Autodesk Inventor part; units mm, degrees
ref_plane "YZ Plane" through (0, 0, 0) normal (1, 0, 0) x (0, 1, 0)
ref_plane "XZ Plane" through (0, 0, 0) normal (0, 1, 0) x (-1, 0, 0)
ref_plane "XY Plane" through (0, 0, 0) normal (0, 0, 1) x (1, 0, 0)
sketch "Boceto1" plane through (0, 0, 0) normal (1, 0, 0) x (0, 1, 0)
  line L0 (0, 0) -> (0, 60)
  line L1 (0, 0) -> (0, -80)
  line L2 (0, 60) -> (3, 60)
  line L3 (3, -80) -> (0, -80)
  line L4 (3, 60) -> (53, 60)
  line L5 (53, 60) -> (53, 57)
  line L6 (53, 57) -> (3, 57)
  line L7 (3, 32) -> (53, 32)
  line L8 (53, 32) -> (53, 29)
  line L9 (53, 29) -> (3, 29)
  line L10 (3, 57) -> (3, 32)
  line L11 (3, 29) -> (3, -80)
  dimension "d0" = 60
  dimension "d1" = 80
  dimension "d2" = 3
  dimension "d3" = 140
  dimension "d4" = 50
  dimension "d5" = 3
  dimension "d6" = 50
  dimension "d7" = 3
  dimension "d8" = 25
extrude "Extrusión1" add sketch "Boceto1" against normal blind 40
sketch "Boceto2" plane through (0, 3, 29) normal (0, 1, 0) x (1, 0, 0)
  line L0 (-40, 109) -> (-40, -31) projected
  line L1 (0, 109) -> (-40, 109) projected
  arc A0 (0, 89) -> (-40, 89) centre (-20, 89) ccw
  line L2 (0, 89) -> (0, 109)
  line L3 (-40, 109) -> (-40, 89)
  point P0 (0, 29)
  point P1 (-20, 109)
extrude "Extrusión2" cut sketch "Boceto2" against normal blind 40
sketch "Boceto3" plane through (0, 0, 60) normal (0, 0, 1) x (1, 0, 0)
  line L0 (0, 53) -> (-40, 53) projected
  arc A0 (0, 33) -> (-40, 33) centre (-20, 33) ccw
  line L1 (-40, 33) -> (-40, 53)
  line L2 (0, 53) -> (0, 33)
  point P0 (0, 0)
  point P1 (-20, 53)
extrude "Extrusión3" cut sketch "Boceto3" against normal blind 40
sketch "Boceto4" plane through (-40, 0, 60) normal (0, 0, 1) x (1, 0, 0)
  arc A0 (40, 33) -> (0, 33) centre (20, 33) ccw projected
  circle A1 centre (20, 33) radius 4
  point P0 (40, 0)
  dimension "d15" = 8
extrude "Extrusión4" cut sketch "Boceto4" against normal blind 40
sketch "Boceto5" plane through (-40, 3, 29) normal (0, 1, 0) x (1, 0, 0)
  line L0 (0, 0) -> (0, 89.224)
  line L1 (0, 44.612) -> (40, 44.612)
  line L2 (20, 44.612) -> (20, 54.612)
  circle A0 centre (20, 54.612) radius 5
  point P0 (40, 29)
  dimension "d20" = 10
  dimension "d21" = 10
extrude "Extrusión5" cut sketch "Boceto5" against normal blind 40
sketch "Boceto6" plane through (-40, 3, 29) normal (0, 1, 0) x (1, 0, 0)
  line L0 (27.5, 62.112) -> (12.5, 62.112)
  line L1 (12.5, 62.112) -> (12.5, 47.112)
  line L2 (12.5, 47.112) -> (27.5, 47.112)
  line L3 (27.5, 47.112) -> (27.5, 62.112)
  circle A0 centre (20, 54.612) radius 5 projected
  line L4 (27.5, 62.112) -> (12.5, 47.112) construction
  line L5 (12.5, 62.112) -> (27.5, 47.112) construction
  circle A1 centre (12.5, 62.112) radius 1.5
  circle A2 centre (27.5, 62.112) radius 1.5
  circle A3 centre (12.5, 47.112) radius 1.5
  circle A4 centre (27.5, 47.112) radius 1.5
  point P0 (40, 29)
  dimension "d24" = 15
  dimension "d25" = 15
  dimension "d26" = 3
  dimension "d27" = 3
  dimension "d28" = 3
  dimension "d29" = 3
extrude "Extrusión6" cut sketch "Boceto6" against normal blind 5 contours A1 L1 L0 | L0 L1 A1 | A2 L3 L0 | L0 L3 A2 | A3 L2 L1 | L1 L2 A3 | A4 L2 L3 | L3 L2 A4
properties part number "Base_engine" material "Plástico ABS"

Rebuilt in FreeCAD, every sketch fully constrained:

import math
import FreeCAD as App
import Part
import Sketcher


def add_polygon(sketch, points):
    """Adds a closed chain of lines whose ends are joined by coincident constraints."""
    first, n = sketch.GeometryCount, len(points)
    for a, b in zip(points, points[1:] + points[:1]):
        sketch.addGeometry(Part.LineSegment(App.Vector(*a, 0), App.Vector(*b, 0)), False)
    for i in range(n):
        sketch.addConstraint(Sketcher.Constraint("Coincident", first + i, 2, first + (i + 1) % n, 1))

doc = App.newDocument("Part")
params = doc.addObject("Spreadsheet::Sheet", "Params")
for row, (alias, value) in enumerate([
    ("sketch1_width", "3 mm"),
    ("sketch1_width2", "50 mm"),
    ("sketch1_height", "140 mm"),
    ("sketch1_height2", "25 mm"),
    ("pad1_length", "40 mm"),
    ("sketch2_radius", "20 mm"),
    ("pocket1_length", "40 mm"),
    ("sketch3_radius", "20 mm"),
    ("pocket2_length", "40 mm"),
    ("sketch4_diameter", "8 mm"),
    ("pocket3_length", "40 mm"),
    ("sketch5_diameter", "10 mm"),
    ("pocket4_length", "40 mm"),
    ("sketch6_diameter", "3 mm"),
    ("pocket5_length", "5 mm"),
], start=1):
    params.set(f"A{row}", alias)
    params.set(f"B{row}", "=" + value)
    params.setAlias(f"B{row}", alias)

body = doc.addObject("PartDesign::Body", "Body")

sketch1 = body.newObject("Sketcher::SketchObject", "Sketch")
sketch1.AttachmentSupport = (doc.getObject("YZ_Plane"), [""])
sketch1.MapMode = "FlatFace"
add_polygon(sketch1, [(0, 60), (0, -80), (3, -80), (3, 29), (53, 29), (53, 32), (3, 32), (3, 57), (53, 57), (53, 60)])
sketch1.addConstraint([
    Sketcher.Constraint("Vertical", 0),
    Sketcher.Constraint("Horizontal", 1),
    Sketcher.Constraint("Vertical", 2),
    Sketcher.Constraint("Horizontal", 3),
    Sketcher.Constraint("Vertical", 4),
    Sketcher.Constraint("Horizontal", 5),
    Sketcher.Constraint("Vertical", 6),
    Sketcher.Constraint("Horizontal", 7),
    Sketcher.Constraint("Vertical", 8),
    Sketcher.Constraint("Horizontal", 9),
    Sketcher.Constraint("PointOnObject", 0, 2, -2),
    Sketcher.Constraint("Vertical", 2, 2, 5, 2),
    Sketcher.Constraint("Vertical", 4, 2, 7, 2),
    Sketcher.Constraint("Equal", 1, 4),
    Sketcher.Constraint("Equal", 4, 8),
    Sketcher.Constraint("DistanceX", 1, 1, 1, 2, 3.0),
    Sketcher.Constraint("DistanceX", 3, 1, 3, 2, 50.0),
    Sketcher.Constraint("DistanceY", 0, 2, 0, 1, 140.0),
    Sketcher.Constraint("DistanceY", 6, 1, 6, 2, 25.0),
    Sketcher.Constraint("DistanceY", 0, 2, -1, 1, 80.0),
])
sketch1.setExpression("Constraints[25]", "Params.sketch1_width")
sketch1.setExpression("Constraints[26]", "Params.sketch1_width2")
sketch1.setExpression("Constraints[27]", "Params.sketch1_height")
sketch1.setExpression("Constraints[28]", "Params.sketch1_height2")
pad1 = body.newObject("PartDesign::Pad", "Pad")
pad1.Profile = sketch1
pad1.setExpression("Length", "Params.pad1_length")
pad1.Reversed = True

sketch2 = body.newObject("Sketcher::SketchObject", "Sketch001")
sketch2.AttachmentSupport = (doc.getObject("XZ_Plane"), [""])
sketch2.MapMode = "FlatFace"
sketch2.AttachmentOffset = App.Placement(App.Vector(0, 0, -3), App.Rotation())
sketch2.addGeometry([
    Part.LineSegment(App.Vector(-20, -80, 0), App.Vector(-40, -80, 0)),
    Part.LineSegment(App.Vector(-40, -80, 0), App.Vector(-40, -60, 0)),
    Part.ArcOfCircle(Part.Circle(App.Vector(-20, -60, 0), App.Vector(0, 0, 1), 20), math.radians(180), math.radians(270)),
    Part.LineSegment(App.Vector(0, -80, 0), App.Vector(-20, -80, 0)),
    Part.ArcOfCircle(Part.Circle(App.Vector(-20, -60, 0), App.Vector(0, 0, 1), 20), math.radians(-90), math.radians(0)),
    Part.LineSegment(App.Vector(0, -60, 0), App.Vector(0, -80, 0)),
], False)
sketch2.addConstraint([
    Sketcher.Constraint("Coincident", 0, 2, 1, 1),
    Sketcher.Constraint("Tangent", 1, 2, 2, 1),
    Sketcher.Constraint("Tangent", 2, 2, 0, 1),
    Sketcher.Constraint("Tangent", 3, 2, 4, 1),
    Sketcher.Constraint("Tangent", 4, 2, 5, 1),
    Sketcher.Constraint("Coincident", 5, 2, 3, 1),
    Sketcher.Constraint("Horizontal", 0),
    Sketcher.Constraint("Vertical", 1),
    Sketcher.Constraint("Horizontal", 3),
    Sketcher.Constraint("Vertical", 5),
    Sketcher.Constraint("Coincident", 4, 3, 2, 3),
    Sketcher.Constraint("Equal", 2, 4),
    Sketcher.Constraint("PointOnObject", 4, 2, -2),
    Sketcher.Constraint("Radius", 2, 20.0),
    Sketcher.Constraint("DistanceY", 2, 3, -1, 1, 60.0),
])
sketch2.setExpression("Constraints[13]", "Params.sketch2_radius")
pocket1 = body.newObject("PartDesign::Pocket", "Pocket")
pocket1.Profile = sketch2
pocket1.setExpression("Length", "Params.pocket1_length")
pocket1.Reversed = True

sketch3 = body.newObject("Sketcher::SketchObject", "Sketch002")
sketch3.AttachmentSupport = (doc.getObject("XY_Plane"), [""])
sketch3.MapMode = "FlatFace"
sketch3.AttachmentOffset = App.Placement(App.Vector(0, 0, 60), App.Rotation())
sketch3.addGeometry([
    Part.LineSegment(App.Vector(0, 33, 0), App.Vector(0, 53, 0)),
    Part.LineSegment(App.Vector(0, 53, 0), App.Vector(-20, 53, 0)),
    Part.ArcOfCircle(Part.Circle(App.Vector(-20, 33, 0), App.Vector(0, 0, 1), 20), math.radians(0), math.radians(90)),
    Part.ArcOfCircle(Part.Circle(App.Vector(-20, 33, 0), App.Vector(0, 0, 1), 20), math.radians(90), math.radians(180)),
    Part.LineSegment(App.Vector(-20, 53, 0), App.Vector(-40, 53, 0)),
    Part.LineSegment(App.Vector(-40, 53, 0), App.Vector(-40, 33, 0)),
], False)
sketch3.addConstraint([
    Sketcher.Constraint("Coincident", 0, 2, 1, 1),
    Sketcher.Constraint("Tangent", 1, 2, 2, 2),
    Sketcher.Constraint("Tangent", 2, 1, 0, 1),
    Sketcher.Constraint("Tangent", 3, 1, 4, 1),
    Sketcher.Constraint("Coincident", 4, 2, 5, 1),
    Sketcher.Constraint("Tangent", 5, 2, 3, 2),
    Sketcher.Constraint("Vertical", 0),
    Sketcher.Constraint("Horizontal", 1),
    Sketcher.Constraint("Horizontal", 4),
    Sketcher.Constraint("Vertical", 5),
    Sketcher.Constraint("Coincident", 3, 3, 2, 3),
    Sketcher.Constraint("Equal", 2, 3),
    Sketcher.Constraint("PointOnObject", 0, 2, -2),
    Sketcher.Constraint("Radius", 2, 20.0),
    Sketcher.Constraint("DistanceY", -1, 1, 2, 3, 33.0),
])
sketch3.setExpression("Constraints[13]", "Params.sketch3_radius")
pocket2 = body.newObject("PartDesign::Pocket", "Pocket001")
pocket2.Profile = sketch3
pocket2.setExpression("Length", "Params.pocket2_length")

sketch4 = body.newObject("Sketcher::SketchObject", "Sketch003")
sketch4.AttachmentSupport = (doc.getObject("XY_Plane"), [""])
sketch4.MapMode = "FlatFace"
sketch4.AttachmentOffset = App.Placement(App.Vector(0, 0, 60), App.Rotation())
sketch4.addGeometry(Part.Circle(App.Vector(-20, 33, 0), App.Vector(0, 0, 1), 4), False)
sketch4.addConstraint([
    Sketcher.Constraint("Diameter", 0, 8.0),
    Sketcher.Constraint("DistanceX", 0, 3, -1, 1, 20.0),
    Sketcher.Constraint("DistanceY", -1, 1, 0, 3, 33.0),
])
sketch4.setExpression("Constraints[0]", "Params.sketch4_diameter")
pocket3 = body.newObject("PartDesign::Pocket", "Pocket002")
pocket3.Profile = sketch4
pocket3.setExpression("Length", "Params.pocket3_length")

sketch5 = body.newObject("Sketcher::SketchObject", "Sketch004")
sketch5.AttachmentSupport = (doc.getObject("XZ_Plane"), [""])
sketch5.MapMode = "FlatFace"
sketch5.AttachmentOffset = App.Placement(App.Vector(0, 0, -3), App.Rotation())
sketch5.addGeometry(Part.Circle(App.Vector(-20, -26, 0), App.Vector(0, 0, 1), 5), False)
sketch5.addConstraint([
    Sketcher.Constraint("Diameter", 0, 10.0),
    Sketcher.Constraint("DistanceX", 0, 3, -1, 1, 20.0),
    Sketcher.Constraint("DistanceY", 0, 3, -1, 1, 25.612),
])
sketch5.setExpression("Constraints[0]", "Params.sketch5_diameter")
pocket4 = body.newObject("PartDesign::Pocket", "Pocket003")
pocket4.Profile = sketch5
pocket4.setExpression("Length", "Params.pocket4_length")
pocket4.Reversed = True

sketch6 = body.newObject("Sketcher::SketchObject", "Sketch005")
sketch6.AttachmentSupport = (doc.getObject("XZ_Plane"), [""])
sketch6.MapMode = "FlatFace"
sketch6.AttachmentOffset = App.Placement(App.Vector(0, 0, -3), App.Rotation())
sketch6.addGeometry([
    Part.Circle(App.Vector(-27.5, -33.1, 0), App.Vector(0, 0, 1), 1.5),
    Part.Circle(App.Vector(-12.5, -33.1, 0), App.Vector(0, 0, 1), 1.5),
    Part.Circle(App.Vector(-27.5, -18.1, 0), App.Vector(0, 0, 1), 1.5),
    Part.Circle(App.Vector(-12.5, -18.1, 0), App.Vector(0, 0, 1), 1.5),
], False)
sketch6.addConstraint([
    Sketcher.Constraint("Equal", 0, 1),
    Sketcher.Constraint("Equal", 1, 2),
    Sketcher.Constraint("Equal", 2, 3),
    Sketcher.Constraint("Horizontal", 0, 3, 1, 3),
    Sketcher.Constraint("Horizontal", 2, 3, 3, 3),
    Sketcher.Constraint("Vertical", 0, 3, 2, 3),
    Sketcher.Constraint("Vertical", 1, 3, 3, 3),
    Sketcher.Constraint("Diameter", 0, 3.0),
    Sketcher.Constraint("DistanceX", 0, 3, 1, 3, 15.0),
    Sketcher.Constraint("DistanceY", 0, 3, 2, 3, 15.0),
    Sketcher.Constraint("DistanceX", 0, 3, -1, 1, 27.5),
    Sketcher.Constraint("DistanceY", 0, 3, -1, 1, 33.112),
])
sketch6.setExpression("Constraints[7]", "Params.sketch6_diameter")
pocket5 = body.newObject("PartDesign::Pocket", "Pocket004")
pocket5.Profile = sketch6
pocket5.setExpression("Length", "Params.pocket5_length")
pocket5.Reversed = True

doc.recompute()
